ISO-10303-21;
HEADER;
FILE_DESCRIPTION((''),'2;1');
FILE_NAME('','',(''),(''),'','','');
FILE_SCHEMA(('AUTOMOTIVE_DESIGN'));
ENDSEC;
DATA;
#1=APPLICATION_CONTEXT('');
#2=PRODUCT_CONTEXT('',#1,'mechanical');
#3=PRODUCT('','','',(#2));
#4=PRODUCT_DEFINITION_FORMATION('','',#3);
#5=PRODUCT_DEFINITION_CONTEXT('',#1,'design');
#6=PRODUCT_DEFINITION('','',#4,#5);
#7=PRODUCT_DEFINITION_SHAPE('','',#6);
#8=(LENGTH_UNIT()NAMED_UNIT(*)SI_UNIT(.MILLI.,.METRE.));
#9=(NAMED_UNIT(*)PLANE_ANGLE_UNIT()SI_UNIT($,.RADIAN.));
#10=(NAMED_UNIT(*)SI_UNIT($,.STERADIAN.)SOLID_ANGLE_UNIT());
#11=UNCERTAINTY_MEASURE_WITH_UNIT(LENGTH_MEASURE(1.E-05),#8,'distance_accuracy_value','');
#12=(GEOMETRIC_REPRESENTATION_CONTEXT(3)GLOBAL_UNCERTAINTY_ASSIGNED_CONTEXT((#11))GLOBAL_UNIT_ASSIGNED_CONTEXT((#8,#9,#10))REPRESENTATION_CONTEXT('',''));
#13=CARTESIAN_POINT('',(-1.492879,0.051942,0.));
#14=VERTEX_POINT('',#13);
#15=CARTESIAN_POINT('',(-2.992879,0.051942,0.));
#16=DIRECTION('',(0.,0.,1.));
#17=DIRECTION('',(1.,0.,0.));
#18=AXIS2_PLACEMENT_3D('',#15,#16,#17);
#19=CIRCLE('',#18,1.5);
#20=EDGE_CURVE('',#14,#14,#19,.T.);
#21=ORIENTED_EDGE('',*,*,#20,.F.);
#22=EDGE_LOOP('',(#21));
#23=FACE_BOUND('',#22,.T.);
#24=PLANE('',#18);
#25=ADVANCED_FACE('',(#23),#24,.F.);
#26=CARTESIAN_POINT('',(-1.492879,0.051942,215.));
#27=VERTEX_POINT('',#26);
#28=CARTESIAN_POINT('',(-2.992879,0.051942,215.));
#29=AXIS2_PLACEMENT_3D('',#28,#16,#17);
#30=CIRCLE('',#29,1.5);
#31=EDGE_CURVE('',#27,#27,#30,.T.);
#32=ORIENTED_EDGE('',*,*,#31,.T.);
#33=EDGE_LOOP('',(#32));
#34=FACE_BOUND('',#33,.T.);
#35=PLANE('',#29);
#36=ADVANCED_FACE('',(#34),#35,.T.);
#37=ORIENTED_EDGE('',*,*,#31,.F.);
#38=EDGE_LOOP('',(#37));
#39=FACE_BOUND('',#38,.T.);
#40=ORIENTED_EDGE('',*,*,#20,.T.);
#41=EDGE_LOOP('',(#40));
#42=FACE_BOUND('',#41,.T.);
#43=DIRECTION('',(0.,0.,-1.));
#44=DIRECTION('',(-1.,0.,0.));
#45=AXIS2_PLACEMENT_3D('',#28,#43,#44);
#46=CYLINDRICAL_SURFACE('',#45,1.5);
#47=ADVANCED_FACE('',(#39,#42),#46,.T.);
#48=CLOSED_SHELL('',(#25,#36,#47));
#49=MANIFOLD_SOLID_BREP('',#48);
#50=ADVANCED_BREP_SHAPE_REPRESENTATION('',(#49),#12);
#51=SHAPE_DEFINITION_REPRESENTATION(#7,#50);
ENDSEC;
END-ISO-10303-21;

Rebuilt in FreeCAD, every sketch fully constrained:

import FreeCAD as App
import Part
import Sketcher

V = App.Vector
Q = App.Units.Quantity

doc = App.newDocument("Part")
body = doc.addObject("PartDesign::Body", "Body")

# Sketch on XY plane
sketch1 = doc.addObject("Sketcher::SketchObject", "Sketch")
body.addObject(sketch1)
sketch1.AttachmentSupport = (doc.XY_Plane, [""])
sketch1.MapMode = "FlatFace"
sketch1.addGeometry(Part.Circle(V(-2.992879, 0.051942, 0), V(0, 0, 1), 1.5), False)
sketch1.addConstraint([
    Sketcher.Constraint("Diameter", 0, Q("3 mm")),
    Sketcher.Constraint("DistanceX", 0, 3, -1, 1, Q("2.992879 mm")),
    Sketcher.Constraint("DistanceY", -1, 1, 0, 3, Q("0.051942 mm")),
])
pad1 = doc.addObject("PartDesign::Pad", "Pad")
body.addObject(pad1)
pad1.Profile = sketch1
pad1.Length = 215

doc.recompute()
